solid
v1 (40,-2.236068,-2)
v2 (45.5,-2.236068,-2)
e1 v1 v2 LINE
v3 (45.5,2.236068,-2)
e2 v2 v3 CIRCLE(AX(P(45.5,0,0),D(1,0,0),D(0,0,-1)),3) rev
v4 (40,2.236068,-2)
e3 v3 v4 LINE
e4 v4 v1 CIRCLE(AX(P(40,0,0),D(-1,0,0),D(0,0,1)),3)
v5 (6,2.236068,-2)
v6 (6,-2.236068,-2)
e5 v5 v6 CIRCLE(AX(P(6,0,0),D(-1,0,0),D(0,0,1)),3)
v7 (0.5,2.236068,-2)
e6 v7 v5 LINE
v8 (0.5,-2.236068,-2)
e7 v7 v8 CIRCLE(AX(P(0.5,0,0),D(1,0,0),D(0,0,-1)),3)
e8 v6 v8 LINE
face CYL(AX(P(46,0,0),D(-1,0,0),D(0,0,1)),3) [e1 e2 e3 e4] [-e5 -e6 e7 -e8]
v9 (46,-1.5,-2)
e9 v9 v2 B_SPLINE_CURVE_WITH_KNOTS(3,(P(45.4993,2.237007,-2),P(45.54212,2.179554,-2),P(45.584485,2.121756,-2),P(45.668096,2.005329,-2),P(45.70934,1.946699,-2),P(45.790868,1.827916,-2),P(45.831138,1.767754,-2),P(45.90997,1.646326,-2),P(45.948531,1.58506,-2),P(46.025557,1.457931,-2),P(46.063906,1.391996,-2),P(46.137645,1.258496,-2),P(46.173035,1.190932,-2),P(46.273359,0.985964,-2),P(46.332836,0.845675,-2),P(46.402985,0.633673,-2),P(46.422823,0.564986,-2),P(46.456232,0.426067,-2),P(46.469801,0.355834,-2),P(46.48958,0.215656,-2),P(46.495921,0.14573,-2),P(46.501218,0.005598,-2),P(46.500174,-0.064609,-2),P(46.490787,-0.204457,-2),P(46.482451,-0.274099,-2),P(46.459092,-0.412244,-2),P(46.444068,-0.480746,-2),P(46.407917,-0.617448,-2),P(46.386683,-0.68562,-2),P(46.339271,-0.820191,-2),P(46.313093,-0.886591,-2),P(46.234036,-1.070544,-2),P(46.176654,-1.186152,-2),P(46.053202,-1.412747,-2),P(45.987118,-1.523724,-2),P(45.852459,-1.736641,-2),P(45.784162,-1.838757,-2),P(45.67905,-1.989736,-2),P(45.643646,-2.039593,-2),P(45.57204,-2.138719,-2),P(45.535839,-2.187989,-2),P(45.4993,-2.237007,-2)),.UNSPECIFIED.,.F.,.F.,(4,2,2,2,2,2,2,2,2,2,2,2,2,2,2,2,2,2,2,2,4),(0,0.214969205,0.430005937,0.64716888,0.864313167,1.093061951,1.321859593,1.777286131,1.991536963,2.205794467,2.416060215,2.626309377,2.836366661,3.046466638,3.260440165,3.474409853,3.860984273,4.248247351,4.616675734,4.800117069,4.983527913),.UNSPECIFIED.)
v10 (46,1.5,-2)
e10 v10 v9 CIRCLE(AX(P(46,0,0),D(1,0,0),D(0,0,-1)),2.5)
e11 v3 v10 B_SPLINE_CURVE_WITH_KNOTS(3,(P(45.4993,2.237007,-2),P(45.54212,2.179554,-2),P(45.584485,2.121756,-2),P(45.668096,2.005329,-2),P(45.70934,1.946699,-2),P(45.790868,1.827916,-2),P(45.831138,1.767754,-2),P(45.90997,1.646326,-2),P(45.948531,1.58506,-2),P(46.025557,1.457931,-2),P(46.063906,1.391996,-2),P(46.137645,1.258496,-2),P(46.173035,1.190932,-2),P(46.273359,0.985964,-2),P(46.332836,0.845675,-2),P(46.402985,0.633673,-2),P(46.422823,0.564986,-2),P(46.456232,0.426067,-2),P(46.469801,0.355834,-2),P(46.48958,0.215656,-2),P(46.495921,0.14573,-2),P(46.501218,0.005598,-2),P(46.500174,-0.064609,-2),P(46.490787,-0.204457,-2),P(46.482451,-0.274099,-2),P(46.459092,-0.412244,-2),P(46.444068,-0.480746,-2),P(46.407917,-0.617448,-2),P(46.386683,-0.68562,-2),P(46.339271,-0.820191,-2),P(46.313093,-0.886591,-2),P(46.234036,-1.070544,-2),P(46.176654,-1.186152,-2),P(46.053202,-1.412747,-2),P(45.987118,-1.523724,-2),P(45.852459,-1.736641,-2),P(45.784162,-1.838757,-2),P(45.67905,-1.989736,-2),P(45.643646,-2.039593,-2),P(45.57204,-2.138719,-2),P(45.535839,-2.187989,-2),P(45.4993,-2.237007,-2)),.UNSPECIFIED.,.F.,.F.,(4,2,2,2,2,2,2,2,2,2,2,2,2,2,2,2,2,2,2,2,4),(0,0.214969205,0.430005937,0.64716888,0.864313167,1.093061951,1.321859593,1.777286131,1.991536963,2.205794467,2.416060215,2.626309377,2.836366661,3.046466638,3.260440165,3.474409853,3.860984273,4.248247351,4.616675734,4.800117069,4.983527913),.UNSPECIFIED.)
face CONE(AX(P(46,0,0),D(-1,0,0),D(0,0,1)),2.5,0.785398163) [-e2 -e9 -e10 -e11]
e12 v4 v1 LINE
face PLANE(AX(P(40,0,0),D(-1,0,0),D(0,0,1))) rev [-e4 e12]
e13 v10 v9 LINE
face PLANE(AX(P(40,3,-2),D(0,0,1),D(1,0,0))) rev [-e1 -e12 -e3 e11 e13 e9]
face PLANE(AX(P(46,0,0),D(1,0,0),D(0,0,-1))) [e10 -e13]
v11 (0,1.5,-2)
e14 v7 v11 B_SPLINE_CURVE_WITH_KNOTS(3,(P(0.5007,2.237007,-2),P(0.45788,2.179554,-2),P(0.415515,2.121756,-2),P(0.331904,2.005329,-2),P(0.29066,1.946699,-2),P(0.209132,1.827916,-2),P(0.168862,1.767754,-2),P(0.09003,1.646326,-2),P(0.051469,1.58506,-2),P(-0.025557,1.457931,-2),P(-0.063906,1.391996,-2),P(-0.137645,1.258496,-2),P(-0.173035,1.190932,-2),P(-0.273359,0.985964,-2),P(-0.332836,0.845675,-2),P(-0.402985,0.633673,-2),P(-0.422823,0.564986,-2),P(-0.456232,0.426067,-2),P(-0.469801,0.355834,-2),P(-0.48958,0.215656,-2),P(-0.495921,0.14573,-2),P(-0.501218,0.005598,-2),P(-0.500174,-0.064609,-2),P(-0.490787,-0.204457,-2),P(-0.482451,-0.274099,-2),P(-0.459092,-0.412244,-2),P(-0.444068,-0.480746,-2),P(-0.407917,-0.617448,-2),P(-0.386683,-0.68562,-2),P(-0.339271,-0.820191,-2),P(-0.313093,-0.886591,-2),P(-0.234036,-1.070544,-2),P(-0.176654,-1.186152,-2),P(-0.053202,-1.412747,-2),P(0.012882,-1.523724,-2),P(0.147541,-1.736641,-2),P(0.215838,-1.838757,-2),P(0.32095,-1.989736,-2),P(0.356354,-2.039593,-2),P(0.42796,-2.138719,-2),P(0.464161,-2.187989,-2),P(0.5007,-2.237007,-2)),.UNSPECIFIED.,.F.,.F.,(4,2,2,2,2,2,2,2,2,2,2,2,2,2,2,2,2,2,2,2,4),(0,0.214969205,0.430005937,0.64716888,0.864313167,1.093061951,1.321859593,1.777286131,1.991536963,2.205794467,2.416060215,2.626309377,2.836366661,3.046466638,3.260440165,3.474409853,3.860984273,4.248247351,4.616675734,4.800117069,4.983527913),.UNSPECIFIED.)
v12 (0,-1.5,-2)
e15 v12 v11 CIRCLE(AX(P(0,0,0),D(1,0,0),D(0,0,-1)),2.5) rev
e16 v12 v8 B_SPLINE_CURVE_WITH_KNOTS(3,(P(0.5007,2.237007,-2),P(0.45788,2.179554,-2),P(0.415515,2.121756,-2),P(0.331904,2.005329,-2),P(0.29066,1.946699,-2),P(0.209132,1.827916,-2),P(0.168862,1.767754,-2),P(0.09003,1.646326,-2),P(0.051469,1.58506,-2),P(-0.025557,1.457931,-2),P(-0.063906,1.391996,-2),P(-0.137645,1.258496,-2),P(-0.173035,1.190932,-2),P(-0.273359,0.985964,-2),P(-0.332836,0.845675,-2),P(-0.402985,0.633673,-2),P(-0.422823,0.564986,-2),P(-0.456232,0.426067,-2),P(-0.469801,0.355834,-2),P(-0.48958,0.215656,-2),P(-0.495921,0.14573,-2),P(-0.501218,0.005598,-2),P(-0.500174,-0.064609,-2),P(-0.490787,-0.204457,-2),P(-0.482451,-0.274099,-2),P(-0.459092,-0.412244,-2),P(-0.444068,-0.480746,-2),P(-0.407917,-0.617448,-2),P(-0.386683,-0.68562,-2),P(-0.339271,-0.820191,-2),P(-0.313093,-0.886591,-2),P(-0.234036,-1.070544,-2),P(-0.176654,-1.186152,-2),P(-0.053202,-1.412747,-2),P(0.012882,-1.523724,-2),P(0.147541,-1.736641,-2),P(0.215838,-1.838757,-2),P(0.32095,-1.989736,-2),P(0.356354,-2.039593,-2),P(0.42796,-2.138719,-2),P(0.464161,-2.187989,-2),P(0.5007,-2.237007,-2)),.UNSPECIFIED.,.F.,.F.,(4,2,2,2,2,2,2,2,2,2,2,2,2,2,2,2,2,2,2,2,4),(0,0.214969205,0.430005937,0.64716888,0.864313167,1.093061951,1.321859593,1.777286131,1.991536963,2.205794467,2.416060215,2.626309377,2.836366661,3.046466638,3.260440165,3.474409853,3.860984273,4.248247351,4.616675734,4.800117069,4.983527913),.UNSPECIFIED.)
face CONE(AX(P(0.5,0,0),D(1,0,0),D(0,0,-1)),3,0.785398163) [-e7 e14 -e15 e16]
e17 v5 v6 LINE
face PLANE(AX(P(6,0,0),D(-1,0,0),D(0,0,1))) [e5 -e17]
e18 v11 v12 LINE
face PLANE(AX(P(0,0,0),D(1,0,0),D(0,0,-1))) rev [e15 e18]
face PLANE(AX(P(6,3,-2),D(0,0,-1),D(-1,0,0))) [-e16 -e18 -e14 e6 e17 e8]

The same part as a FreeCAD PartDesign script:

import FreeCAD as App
import Part
import Sketcher

V = App.Vector
Q = App.Units.Quantity


def edges_at(feature, points):
    """Names of the edges that pass closest to the given points."""
    edges = feature.Shape.Edges
    near = lambda p: min(range(len(edges)), key=lambda i: edges[i].distToShape(Part.Vertex(*p))[0])
    return sorted({f"Edge{near(p) + 1}" for p in points})


def add_polygon(sketch, points):
    """Adds a closed chain of lines whose ends are joined by coincident constraints."""
    first, n = sketch.GeometryCount, len(points)
    for a, b in zip(points, points[1:] + points[:1]):
        sketch.addGeometry(Part.LineSegment(App.Vector(*a, 0), App.Vector(*b, 0)), False)
    for i in range(n):
        sketch.addConstraint(Sketcher.Constraint("Coincident", first + i, 2, first + (i + 1) % n, 1))

doc = App.newDocument("Part")
body = doc.addObject("PartDesign::Body", "Body")

sketch1 = body.newObject("Sketcher::SketchObject", "Sketch")
sketch1.AttachmentSupport = (doc.getObject("YZ_Plane"), [""])
sketch1.MapMode = "FlatFace"
sketch1.addGeometry(Part.Circle(V(0, 0, 0), V(0, 0, 1), 3), False)
sketch1.addConstraint([
    Sketcher.Constraint("Coincident", 0, 3, -1, 1),
    Sketcher.Constraint("Diameter", 0, Q("6 mm")),
])
pad1 = body.newObject("PartDesign::Pad", "Pad")
pad1.Profile = sketch1
pad1.Length = 46
doc.recompute()

chamfer = body.newObject("PartDesign::Chamfer", "Chamfer")
chamfer.Base = (pad1, edges_at(pad1, [(0, 0, 3), (46, 0, 3)]))
chamfer.Size = 0.5

sketch2 = body.newObject("Sketcher::SketchObject", "Sketch001")
sketch2.AttachmentSupport = (doc.getObject("YZ_Plane"), [""])
sketch2.MapMode = "FlatFace"
sketch2.AttachmentOffset = App.Placement(V(0, 0, 46), App.Rotation())
add_polygon(sketch2, [(3, -2), (-3, -2), (-3, -3), (3, -3)])
sketch2.addConstraint([
    Sketcher.Constraint("Horizontal", 0),
    Sketcher.Constraint("Vertical", 1),
    Sketcher.Constraint("Horizontal", 2),
    Sketcher.Constraint("Vertical", 3),
    Sketcher.Constraint("DistanceX", 0, 2, 0, 1, Q("6 mm")),
    Sketcher.Constraint("DistanceY", 1, 2, 1, 1, Q("1 mm")),
    Sketcher.Constraint("DistanceX", 0, 2, -1, 1, Q("3 mm")),
    Sketcher.Constraint("DistanceY", 0, 2, -1, 1, Q("2 mm")),
])
pocket1 = body.newObject("PartDesign::Pocket", "Pocket")
pocket1.Profile = sketch2
pocket1.Length = 6

sketch3 = body.newObject("Sketcher::SketchObject", "Sketch002")
sketch3.AttachmentSupport = (doc.getObject("YZ_Plane"), [""])
sketch3.MapMode = "FlatFace"
add_polygon(sketch3, [(3, -2), (-3, -2), (-3, -3), (3, -3)])
sketch3.addConstraint([
    Sketcher.Constraint("Horizontal", 0),
    Sketcher.Constraint("Vertical", 1),
    Sketcher.Constraint("Horizontal", 2),
    Sketcher.Constraint("Vertical", 3),
    Sketcher.Constraint("DistanceX", 0, 2, 0, 1, Q("6 mm")),
    Sketcher.Constraint("DistanceY", 1, 2, 1, 1, Q("1 mm")),
    Sketcher.Constraint("DistanceX", 0, 2, -1, 1, Q("3 mm")),
    Sketcher.Constraint("DistanceY", 0, 2, -1, 1, Q("2 mm")),
])
pocket2 = body.newObject("PartDesign::Pocket", "Pocket001")
pocket2.Profile = sketch3
pocket2.Length = 6
pocket2.Reversed = True

doc.recompute()
